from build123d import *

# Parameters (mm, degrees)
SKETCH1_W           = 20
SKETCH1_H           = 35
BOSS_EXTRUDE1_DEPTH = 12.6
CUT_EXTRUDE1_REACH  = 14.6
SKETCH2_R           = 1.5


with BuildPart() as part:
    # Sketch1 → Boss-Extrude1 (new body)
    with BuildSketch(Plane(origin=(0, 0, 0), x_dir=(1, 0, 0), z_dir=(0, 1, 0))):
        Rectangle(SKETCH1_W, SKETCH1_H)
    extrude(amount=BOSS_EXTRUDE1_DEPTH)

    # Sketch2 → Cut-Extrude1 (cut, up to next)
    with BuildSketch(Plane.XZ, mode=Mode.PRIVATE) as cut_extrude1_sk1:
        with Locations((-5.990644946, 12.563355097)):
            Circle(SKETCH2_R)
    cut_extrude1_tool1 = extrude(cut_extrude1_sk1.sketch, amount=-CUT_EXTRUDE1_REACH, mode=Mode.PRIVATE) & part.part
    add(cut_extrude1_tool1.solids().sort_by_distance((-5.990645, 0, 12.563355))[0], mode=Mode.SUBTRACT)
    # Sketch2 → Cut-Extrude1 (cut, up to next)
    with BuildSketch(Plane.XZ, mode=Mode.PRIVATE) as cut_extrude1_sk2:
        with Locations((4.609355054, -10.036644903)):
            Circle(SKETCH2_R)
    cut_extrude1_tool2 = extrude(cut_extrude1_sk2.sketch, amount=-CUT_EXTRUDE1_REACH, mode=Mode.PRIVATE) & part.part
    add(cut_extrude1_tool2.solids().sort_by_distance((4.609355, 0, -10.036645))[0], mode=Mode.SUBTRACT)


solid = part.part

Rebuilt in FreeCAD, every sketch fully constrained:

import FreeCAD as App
import Part
import Sketcher

V = App.Vector
Q = App.Units.Quantity


def add_polygon(sketch, points):
    """Adds a closed chain of lines whose ends are joined by coincident constraints."""
    first, n = sketch.GeometryCount, len(points)
    for a, b in zip(points, points[1:] + points[:1]):
        sketch.addGeometry(Part.LineSegment(App.Vector(*a, 0), App.Vector(*b, 0)), False)
    for i in range(n):
        sketch.addConstraint(Sketcher.Constraint("Coincident", first + i, 2, first + (i + 1) % n, 1))

doc = App.newDocument("Part")
params = doc.addObject("Spreadsheet::Sheet", "Params")
for row, (alias, value) in enumerate([
    ("sketch1_width", "20 mm"),
    ("sketch1_height", "35 mm"),
    ("pad1_length", "12.6 mm"),
    ("sketch2_diameter", "3 mm"),
    ("sketch3_diameter", "3 mm"),
], start=1):
    params.set(f"A{row}", alias)
    params.set(f"B{row}", "=" + value)
    params.setAlias(f"B{row}", alias)

body = doc.addObject("PartDesign::Body", "Body")

sketch1 = body.newObject("Sketcher::SketchObject", "Sketch")
sketch1.AttachmentSupport = (doc.getObject("XZ_Plane"), [""])
sketch1.MapMode = "FlatFace"
add_polygon(sketch1, [(-10, -18), (-10, 18), (10, 18), (10, -18)])
sketch1.addConstraint([
    Sketcher.Constraint("Vertical", 0),
    Sketcher.Constraint("Horizontal", 1),
    Sketcher.Constraint("Vertical", 2),
    Sketcher.Constraint("Horizontal", 3),
    Sketcher.Constraint("Symmetric", 0, 2, 2, 2, -1, 1),
    Sketcher.Constraint("DistanceX", 1, 1, 1, 2, Q("20 mm")),
    Sketcher.Constraint("DistanceY", 0, 1, 0, 2, Q("35 mm")),
])
sketch1.setExpression("Constraints[9]", "Params.sketch1_width")
sketch1.setExpression("Constraints[10]", "Params.sketch1_height")
pad1 = body.newObject("PartDesign::Pad", "Pad")
pad1.Profile = sketch1
pad1.setExpression("Length", "Params.pad1_length")
pad1.Reversed = True

sketch2 = body.newObject("Sketcher::SketchObject", "Sketch001")
sketch2.AttachmentSupport = (doc.getObject("XZ_Plane"), [""])
sketch2.MapMode = "FlatFace"
sketch2.addGeometry(Part.Circle(V(-6, 12.6, 0), V(0, 0, 1), 1.5), False)
sketch2.addConstraint([
    Sketcher.Constraint("Diameter", 0, Q("3 mm")),
    Sketcher.Constraint("DistanceX", 0, 3, -1, 1, Q("5.990645 mm")),
    Sketcher.Constraint("DistanceY", -1, 1, 0, 3, Q("12.563355 mm")),
])
sketch2.setExpression("Constraints[0]", "Params.sketch2_diameter")
pocket1 = body.newObject("PartDesign::Pocket", "Pocket")
pocket1.Profile = sketch2
pocket1.Type = "UpToFirst"

sketch3 = body.newObject("Sketcher::SketchObject", "Sketch002")
sketch3.AttachmentSupport = (doc.getObject("XZ_Plane"), [""])
sketch3.MapMode = "FlatFace"
sketch3.addGeometry(Part.Circle(V(4.6, -10, 0), V(0, 0, 1), 1.5), False)
sketch3.addConstraint([
    Sketcher.Constraint("Diameter", 0, Q("3 mm")),
    Sketcher.Constraint("DistanceX", -1, 1, 0, 3, Q("4.609355 mm")),
    Sketcher.Constraint("DistanceY", 0, 3, -1, 1, Q("10.036645 mm")),
])
sketch3.setExpression("Constraints[0]", "Params.sketch3_diameter")
pocket2 = body.newObject("PartDesign::Pocket", "Pocket001")
pocket2.Profile = sketch3
pocket2.Type = "UpToFirst"

doc.recompute()
